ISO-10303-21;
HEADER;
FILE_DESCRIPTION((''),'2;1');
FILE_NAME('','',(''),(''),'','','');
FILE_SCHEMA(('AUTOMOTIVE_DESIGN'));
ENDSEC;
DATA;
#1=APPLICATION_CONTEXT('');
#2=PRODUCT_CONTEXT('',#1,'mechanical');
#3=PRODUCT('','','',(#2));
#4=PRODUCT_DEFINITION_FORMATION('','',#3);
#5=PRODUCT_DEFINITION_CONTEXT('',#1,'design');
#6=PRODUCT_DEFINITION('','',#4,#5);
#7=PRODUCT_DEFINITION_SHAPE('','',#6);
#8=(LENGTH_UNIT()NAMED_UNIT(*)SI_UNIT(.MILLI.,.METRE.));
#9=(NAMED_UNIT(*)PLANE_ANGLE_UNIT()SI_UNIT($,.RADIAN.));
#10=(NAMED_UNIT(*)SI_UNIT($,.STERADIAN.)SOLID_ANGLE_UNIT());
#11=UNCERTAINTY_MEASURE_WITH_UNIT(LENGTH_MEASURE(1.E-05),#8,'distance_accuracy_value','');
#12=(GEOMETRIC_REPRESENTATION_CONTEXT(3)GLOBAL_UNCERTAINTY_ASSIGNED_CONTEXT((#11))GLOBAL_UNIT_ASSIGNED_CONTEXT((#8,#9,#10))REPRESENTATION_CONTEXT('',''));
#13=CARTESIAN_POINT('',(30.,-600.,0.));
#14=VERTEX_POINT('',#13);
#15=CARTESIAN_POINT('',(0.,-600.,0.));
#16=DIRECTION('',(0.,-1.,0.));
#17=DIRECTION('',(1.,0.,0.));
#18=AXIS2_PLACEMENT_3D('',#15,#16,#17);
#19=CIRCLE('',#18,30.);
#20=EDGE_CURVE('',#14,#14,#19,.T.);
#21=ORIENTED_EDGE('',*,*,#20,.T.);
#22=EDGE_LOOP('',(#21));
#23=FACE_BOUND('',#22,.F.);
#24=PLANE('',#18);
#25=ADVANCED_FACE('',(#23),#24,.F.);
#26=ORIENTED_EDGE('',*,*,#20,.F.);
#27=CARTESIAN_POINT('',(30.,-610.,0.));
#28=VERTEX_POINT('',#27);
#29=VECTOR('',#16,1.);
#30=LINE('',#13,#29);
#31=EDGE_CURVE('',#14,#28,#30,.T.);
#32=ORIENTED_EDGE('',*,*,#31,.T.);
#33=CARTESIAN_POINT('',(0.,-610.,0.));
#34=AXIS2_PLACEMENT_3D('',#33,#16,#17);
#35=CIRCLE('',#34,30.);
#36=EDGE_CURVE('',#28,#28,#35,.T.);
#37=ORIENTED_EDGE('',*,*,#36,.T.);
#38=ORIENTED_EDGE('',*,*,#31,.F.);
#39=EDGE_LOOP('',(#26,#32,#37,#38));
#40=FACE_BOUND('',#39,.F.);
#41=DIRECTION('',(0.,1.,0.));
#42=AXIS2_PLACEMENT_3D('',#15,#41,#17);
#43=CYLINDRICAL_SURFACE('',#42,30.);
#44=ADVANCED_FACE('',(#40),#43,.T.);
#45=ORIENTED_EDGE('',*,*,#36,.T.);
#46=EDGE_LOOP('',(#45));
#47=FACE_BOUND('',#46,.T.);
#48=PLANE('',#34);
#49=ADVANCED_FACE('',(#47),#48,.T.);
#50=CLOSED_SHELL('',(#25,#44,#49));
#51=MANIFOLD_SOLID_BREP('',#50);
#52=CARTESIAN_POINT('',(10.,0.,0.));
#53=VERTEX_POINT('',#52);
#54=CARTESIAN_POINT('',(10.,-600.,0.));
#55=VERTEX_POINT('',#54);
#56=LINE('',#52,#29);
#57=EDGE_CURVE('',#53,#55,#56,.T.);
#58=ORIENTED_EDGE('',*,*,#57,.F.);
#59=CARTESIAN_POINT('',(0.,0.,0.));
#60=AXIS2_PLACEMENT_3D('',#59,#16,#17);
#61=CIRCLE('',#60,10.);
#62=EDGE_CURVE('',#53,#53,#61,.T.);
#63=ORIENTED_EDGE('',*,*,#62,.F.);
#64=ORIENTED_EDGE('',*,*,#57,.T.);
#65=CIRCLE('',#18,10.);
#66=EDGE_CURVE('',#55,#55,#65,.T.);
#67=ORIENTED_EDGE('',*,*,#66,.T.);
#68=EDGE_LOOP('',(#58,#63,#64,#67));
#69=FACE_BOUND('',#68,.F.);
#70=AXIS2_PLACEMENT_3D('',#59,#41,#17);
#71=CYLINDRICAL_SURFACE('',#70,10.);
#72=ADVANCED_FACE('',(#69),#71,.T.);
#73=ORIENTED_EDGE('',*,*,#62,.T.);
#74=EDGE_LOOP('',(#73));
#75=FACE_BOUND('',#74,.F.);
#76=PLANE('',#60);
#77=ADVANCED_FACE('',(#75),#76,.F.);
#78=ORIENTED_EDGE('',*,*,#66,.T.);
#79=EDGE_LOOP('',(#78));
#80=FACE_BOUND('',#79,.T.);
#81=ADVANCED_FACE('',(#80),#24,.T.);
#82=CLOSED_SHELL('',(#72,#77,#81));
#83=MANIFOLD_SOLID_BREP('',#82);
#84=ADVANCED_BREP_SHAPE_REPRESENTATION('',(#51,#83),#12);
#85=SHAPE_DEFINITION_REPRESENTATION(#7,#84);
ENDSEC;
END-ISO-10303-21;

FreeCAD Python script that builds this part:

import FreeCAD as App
import Part
import Sketcher

doc = App.newDocument("Part")
body = doc.addObject("PartDesign::Body", "Body")

sketch1 = body.newObject("Sketcher::SketchObject", "Sketch")
sketch1.AttachmentSupport = (doc.getObject("XZ_Plane"), [""])
sketch1.MapMode = "FlatFace"
sketch1.addGeometry(Part.Circle(App.Vector(0, 0, 0), App.Vector(0, 0, 1), 10), False)
sketch1.addConstraint(Sketcher.Constraint("Coincident", 0, 3, -1, 1))
sketch1.addConstraint(Sketcher.Constraint("Diameter", 0, 20.0))
pad1 = body.newObject("PartDesign::Pad", "Pad")
pad1.Profile = sketch1
pad1.Length = 600
body2 = doc.addObject("PartDesign::Body", "Body001")

sketch2 = body2.newObject("Sketcher::SketchObject", "Sketch001")
sketch2.AttachmentSupport = (doc.getObject("XZ_Plane001"), [""])
sketch2.MapMode = "FlatFace"
sketch2.AttachmentOffset = App.Placement(App.Vector(0, 0, 600), App.Rotation())
sketch2.addGeometry(Part.Circle(App.Vector(0, 0, 0), App.Vector(0, 0, 1), 30), False)
sketch2.addConstraint(Sketcher.Constraint("Coincident", 0, 3, -1, 1))
sketch2.addConstraint(Sketcher.Constraint("Diameter", 0, 60.0))
pad2 = body2.newObject("PartDesign::Pad", "Pad001")
pad2.Profile = sketch2
pad2.Length = 10

doc.recompute()
